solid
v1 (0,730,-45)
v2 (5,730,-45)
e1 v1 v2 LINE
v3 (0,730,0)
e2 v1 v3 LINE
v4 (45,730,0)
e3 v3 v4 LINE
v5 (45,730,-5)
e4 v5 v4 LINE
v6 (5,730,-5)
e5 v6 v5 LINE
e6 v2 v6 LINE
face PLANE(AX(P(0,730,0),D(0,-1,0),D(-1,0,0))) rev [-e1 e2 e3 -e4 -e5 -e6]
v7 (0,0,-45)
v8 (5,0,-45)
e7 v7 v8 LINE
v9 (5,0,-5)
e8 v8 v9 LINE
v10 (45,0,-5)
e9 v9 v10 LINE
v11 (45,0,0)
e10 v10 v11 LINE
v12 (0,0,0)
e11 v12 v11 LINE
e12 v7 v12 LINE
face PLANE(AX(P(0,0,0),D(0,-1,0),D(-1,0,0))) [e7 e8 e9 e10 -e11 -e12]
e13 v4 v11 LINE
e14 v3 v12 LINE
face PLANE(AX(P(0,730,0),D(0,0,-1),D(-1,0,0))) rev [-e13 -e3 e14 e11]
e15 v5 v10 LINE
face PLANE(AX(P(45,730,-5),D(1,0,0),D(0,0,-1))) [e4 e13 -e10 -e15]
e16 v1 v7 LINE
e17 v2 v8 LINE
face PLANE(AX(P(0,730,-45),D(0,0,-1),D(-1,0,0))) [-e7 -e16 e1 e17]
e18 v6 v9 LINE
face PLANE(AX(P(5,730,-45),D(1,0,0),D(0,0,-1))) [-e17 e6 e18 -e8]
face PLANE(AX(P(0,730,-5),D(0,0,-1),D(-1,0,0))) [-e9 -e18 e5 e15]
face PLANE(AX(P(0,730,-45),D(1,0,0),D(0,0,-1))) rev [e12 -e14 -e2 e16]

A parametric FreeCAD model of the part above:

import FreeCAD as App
import Part
import Sketcher
Q = App.Units.Quantity

doc = App.newDocument("Part")
body = doc.addObject("PartDesign::Body", "Body")

# Sketch on XZ plane
sketch1 = doc.addObject("Sketcher::SketchObject", "Sketch")
body.addObject(sketch1)
sketch1.AttachmentSupport = (doc.XZ_Plane, [""])
sketch1.MapMode = "FlatFace"
sketch1.addGeometry(Part.LineSegment(App.Vector(0, -45, 0), App.Vector(0, 0, 0)), False)
sketch1.addGeometry(Part.LineSegment(App.Vector(0, 0, 0), App.Vector(45, 0, 0)), False)
sketch1.addGeometry(Part.LineSegment(App.Vector(45, 0, 0), App.Vector(45, -5, 0)), False)
sketch1.addGeometry(Part.LineSegment(App.Vector(45, -5, 0), App.Vector(5, -5, 0)), False)
sketch1.addGeometry(Part.LineSegment(App.Vector(5, -5, 0), App.Vector(5, -45, 0)), False)
sketch1.addGeometry(Part.LineSegment(App.Vector(5, -45, 0), App.Vector(0, -45, 0)), False)
sketch1.addConstraint(Sketcher.Constraint("Coincident", 0, 2, 1, 1))
sketch1.addConstraint(Sketcher.Constraint("Coincident", 1, 2, 2, 1))
sketch1.addConstraint(Sketcher.Constraint("Coincident", 2, 2, 3, 1))
sketch1.addConstraint(Sketcher.Constraint("Coincident", 3, 2, 4, 1))
sketch1.addConstraint(Sketcher.Constraint("Coincident", 4, 2, 5, 1))
sketch1.addConstraint(Sketcher.Constraint("Coincident", 5, 2, 0, 1))
sketch1.addConstraint(Sketcher.Constraint("Vertical", 0))
sketch1.addConstraint(Sketcher.Constraint("Horizontal", 1))
sketch1.addConstraint(Sketcher.Constraint("Vertical", 2))
sketch1.addConstraint(Sketcher.Constraint("Horizontal", 3))
sketch1.addConstraint(Sketcher.Constraint("Vertical", 4))
sketch1.addConstraint(Sketcher.Constraint("Horizontal", 5))
sketch1.addConstraint(Sketcher.Constraint("Coincident", 0, 2, -1, 1))
sketch1.addConstraint(Sketcher.Constraint("Equal", 1, 0))
sketch1.addConstraint(Sketcher.Constraint("Equal", 5, 2))
sketch1.addConstraint(Sketcher.Constraint("DistanceX", 1, 1, 1, 2, Q("45 mm")))
sketch1.addConstraint(Sketcher.Constraint("DistanceX", 3, 2, 3, 1, Q("40 mm")))
pad1 = doc.addObject("PartDesign::Pad", "Pad")
body.addObject(pad1)
pad1.Profile = sketch1
pad1.Length = 730
pad1.Reversed = True

doc.recompute()
